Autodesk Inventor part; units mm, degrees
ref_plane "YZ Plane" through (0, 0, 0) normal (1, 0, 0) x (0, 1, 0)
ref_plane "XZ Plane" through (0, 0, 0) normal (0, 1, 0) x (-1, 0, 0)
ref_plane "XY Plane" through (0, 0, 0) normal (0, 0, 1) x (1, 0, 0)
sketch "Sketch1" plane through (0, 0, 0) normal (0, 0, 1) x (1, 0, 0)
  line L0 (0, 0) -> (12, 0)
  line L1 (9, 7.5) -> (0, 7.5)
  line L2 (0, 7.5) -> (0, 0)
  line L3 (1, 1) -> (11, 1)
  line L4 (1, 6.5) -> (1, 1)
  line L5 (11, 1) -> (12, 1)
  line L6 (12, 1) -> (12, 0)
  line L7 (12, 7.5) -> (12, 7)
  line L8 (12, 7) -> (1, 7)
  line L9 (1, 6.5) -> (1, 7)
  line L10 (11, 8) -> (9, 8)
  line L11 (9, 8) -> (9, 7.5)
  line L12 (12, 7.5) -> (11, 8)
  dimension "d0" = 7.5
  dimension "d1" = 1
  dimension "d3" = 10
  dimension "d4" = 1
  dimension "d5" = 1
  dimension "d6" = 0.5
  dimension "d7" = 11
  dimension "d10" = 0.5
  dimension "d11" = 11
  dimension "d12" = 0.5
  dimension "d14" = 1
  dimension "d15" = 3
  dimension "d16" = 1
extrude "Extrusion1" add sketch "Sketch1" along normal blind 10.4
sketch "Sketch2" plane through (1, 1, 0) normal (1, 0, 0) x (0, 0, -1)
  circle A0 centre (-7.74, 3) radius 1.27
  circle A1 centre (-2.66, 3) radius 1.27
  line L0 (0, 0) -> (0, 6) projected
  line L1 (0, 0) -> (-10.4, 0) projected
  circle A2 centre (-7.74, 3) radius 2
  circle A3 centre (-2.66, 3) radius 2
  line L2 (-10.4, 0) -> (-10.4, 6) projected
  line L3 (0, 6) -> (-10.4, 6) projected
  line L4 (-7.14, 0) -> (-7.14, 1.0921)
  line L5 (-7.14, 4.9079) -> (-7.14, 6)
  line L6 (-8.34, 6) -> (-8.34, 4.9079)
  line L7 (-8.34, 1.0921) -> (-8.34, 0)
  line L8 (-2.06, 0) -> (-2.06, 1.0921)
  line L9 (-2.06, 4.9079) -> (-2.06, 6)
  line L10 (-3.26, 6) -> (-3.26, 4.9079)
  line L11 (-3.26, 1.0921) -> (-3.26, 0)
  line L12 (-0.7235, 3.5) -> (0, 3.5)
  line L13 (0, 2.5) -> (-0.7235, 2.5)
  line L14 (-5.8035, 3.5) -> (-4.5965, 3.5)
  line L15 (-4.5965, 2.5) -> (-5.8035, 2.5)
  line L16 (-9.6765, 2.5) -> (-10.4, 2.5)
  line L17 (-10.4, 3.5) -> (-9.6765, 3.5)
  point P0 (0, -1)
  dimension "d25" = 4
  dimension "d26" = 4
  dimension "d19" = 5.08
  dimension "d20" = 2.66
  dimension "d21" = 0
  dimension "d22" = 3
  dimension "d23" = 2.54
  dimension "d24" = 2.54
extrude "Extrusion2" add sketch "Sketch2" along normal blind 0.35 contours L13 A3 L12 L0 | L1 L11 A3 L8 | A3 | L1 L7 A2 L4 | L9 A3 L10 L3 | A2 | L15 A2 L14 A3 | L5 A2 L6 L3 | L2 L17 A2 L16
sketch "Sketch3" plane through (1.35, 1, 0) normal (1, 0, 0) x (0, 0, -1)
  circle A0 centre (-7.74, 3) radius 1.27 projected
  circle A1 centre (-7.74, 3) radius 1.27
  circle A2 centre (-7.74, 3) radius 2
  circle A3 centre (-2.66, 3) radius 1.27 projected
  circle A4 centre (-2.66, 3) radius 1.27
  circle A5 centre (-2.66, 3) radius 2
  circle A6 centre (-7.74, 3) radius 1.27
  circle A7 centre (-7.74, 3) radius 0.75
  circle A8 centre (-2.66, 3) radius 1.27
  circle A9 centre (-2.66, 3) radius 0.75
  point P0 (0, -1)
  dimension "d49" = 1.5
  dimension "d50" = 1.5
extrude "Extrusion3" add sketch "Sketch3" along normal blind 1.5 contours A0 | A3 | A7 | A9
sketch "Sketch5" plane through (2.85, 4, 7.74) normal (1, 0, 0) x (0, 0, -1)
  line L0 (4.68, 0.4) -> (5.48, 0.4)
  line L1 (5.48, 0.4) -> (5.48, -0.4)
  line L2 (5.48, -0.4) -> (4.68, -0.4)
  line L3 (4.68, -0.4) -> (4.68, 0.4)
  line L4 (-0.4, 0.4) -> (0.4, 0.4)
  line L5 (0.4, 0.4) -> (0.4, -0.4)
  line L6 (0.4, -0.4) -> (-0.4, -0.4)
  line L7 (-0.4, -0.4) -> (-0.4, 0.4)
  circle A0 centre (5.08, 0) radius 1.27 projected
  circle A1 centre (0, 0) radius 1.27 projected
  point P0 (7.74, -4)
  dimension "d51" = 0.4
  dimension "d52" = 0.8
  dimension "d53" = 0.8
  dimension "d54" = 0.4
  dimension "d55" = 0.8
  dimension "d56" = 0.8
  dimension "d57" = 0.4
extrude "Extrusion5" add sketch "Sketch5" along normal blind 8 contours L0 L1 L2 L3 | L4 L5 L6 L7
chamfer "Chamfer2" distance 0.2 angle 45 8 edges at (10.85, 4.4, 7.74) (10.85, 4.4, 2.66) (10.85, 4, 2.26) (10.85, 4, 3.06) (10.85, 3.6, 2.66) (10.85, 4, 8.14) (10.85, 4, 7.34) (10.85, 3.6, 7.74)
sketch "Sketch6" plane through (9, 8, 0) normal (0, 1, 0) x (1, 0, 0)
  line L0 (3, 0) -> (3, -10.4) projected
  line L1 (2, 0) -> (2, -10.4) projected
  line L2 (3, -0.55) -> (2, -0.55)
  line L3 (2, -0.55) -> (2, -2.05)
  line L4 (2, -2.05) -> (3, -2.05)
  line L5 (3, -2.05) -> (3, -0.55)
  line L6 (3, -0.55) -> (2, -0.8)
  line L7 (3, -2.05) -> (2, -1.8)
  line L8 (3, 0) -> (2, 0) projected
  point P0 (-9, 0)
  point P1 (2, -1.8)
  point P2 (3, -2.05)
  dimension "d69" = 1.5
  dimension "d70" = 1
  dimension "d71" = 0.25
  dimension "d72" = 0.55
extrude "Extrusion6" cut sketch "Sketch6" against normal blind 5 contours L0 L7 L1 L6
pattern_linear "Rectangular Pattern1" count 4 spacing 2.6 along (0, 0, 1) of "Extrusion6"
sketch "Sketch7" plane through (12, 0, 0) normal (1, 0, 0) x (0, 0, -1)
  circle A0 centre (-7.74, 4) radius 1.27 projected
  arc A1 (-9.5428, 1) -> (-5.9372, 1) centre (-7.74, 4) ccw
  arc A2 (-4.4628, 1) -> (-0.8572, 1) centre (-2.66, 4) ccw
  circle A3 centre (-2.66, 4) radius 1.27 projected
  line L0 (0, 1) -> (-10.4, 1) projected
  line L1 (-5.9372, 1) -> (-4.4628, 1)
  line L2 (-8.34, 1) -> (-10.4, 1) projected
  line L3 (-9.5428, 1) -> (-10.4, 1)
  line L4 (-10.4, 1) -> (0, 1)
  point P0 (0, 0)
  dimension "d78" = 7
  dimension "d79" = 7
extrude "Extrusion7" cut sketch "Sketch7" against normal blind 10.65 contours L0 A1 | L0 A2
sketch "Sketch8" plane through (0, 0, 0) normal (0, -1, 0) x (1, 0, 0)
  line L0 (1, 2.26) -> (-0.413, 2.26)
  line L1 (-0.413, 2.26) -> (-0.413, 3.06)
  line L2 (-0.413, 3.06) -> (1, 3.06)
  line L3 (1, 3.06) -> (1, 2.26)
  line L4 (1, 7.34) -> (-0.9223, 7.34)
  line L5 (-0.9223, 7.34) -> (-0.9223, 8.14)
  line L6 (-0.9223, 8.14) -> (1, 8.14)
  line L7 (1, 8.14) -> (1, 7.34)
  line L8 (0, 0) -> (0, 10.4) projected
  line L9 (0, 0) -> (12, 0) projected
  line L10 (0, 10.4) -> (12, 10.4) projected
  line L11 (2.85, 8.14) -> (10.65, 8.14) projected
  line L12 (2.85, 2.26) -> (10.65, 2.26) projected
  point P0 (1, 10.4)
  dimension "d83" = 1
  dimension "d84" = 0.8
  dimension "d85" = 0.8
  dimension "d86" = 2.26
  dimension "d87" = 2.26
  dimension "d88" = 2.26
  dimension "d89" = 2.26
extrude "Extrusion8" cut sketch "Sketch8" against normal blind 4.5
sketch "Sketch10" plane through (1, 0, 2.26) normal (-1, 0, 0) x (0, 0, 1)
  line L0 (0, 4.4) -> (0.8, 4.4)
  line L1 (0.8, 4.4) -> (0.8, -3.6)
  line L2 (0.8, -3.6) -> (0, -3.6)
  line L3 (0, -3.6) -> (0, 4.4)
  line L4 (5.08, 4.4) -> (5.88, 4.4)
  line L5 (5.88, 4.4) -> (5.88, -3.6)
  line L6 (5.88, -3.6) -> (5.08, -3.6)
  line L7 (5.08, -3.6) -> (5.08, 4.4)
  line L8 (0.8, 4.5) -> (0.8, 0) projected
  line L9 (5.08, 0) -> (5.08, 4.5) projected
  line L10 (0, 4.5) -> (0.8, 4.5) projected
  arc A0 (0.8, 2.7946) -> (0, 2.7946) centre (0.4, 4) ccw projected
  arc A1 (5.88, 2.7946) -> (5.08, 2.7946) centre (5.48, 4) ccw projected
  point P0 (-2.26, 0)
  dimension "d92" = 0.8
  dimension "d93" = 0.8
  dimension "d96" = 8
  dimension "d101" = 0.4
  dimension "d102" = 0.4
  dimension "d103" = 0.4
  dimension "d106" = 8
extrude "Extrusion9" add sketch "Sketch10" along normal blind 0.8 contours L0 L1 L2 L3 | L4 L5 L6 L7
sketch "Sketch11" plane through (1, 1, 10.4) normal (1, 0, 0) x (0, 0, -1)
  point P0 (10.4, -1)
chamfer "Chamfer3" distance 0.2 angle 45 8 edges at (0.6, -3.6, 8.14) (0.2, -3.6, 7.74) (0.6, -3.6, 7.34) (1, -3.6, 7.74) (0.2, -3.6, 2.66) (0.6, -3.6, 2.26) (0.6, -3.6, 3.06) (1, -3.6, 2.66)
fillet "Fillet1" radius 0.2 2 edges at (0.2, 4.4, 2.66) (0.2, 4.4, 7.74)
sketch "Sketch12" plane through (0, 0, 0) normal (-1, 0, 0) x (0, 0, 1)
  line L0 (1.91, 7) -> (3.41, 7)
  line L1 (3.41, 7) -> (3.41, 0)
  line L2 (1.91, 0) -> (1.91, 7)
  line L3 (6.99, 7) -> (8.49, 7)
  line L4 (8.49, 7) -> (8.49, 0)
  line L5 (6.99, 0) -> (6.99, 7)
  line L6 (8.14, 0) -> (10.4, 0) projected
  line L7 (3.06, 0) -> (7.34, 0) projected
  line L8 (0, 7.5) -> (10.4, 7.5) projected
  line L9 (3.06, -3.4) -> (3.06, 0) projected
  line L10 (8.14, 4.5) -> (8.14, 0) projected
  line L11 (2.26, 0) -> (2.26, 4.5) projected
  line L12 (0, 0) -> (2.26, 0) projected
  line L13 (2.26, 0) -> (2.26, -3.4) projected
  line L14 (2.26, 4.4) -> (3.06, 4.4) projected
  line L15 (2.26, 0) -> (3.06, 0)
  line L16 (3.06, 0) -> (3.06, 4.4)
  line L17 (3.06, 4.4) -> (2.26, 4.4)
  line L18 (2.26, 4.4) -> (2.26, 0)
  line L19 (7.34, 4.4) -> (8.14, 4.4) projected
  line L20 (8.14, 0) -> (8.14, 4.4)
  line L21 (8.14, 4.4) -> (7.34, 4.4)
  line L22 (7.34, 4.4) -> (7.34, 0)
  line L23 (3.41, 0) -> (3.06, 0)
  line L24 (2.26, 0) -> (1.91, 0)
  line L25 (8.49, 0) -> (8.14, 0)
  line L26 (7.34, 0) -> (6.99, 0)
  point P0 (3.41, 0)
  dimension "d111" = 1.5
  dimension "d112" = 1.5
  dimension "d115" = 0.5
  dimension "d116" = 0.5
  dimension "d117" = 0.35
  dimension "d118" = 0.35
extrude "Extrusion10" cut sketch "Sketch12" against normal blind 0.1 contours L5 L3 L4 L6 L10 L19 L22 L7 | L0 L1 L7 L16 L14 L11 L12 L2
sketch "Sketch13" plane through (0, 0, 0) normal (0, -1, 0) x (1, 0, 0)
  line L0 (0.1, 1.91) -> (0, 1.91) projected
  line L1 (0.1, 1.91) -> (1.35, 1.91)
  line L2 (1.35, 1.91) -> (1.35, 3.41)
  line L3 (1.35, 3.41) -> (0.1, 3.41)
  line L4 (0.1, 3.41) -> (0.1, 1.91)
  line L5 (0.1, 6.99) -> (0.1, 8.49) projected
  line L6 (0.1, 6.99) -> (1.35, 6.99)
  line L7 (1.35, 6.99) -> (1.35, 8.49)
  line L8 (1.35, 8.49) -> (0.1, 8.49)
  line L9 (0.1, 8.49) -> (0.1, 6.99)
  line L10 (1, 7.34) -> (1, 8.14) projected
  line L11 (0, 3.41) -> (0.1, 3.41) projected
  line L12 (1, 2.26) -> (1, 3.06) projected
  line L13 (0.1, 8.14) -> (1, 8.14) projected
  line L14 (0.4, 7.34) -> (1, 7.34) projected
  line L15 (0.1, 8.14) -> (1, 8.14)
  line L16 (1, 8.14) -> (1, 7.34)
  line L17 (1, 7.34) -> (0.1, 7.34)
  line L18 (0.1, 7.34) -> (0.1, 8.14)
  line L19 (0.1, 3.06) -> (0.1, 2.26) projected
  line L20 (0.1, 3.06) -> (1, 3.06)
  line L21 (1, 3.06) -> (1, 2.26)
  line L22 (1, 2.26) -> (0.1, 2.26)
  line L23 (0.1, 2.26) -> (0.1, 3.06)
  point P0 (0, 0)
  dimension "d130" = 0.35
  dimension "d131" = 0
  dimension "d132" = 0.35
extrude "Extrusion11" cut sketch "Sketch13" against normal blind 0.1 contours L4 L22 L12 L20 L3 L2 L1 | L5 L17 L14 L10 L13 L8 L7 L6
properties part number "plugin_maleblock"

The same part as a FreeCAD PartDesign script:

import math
import FreeCAD as App
import Part
import Sketcher

V = App.Vector


def edges_at(feature, points):
    """Names of the edges that pass closest to the given points."""
    edges = feature.Shape.Edges
    near = lambda p: min(range(len(edges)), key=lambda i: edges[i].distToShape(Part.Vertex(*p))[0])
    return sorted({f"Edge{near(p) + 1}" for p in points})


def add_polygon(sketch, points):
    """Adds a closed chain of lines whose ends are joined by coincident constraints."""
    first, n = sketch.GeometryCount, len(points)
    for a, b in zip(points, points[1:] + points[:1]):
        sketch.addGeometry(Part.LineSegment(App.Vector(*a, 0), App.Vector(*b, 0)), False)
    for i in range(n):
        sketch.addConstraint(Sketcher.Constraint("Coincident", first + i, 2, first + (i + 1) % n, 1))

doc = App.newDocument("Part")
body = doc.addObject("PartDesign::Body", "Body")
body.AllowCompound = True

# Sketch on XY plane
sketch1 = body.newObject("Sketcher::SketchObject", "Sketch")
sketch1.AttachmentSupport = (doc.getObject("XY_Plane"), [""])
sketch1.MapMode = "FlatFace"
add_polygon(sketch1, [(0, 7.5), (0, 0), (12, 0), (12, 1), (1, 1), (1, 7), (12, 7), (12, 7.5), (11, 8), (9, 8), (9, 7.5)])  # lines 0-10
sketch1.addConstraint(Sketcher.Constraint("Vertical", 0))
sketch1.addConstraint(Sketcher.Constraint("Horizontal", 1))
sketch1.addConstraint(Sketcher.Constraint("Vertical", 2))
sketch1.addConstraint(Sketcher.Constraint("Horizontal", 3))
sketch1.addConstraint(Sketcher.Constraint("Vertical", 4))
sketch1.addConstraint(Sketcher.Constraint("Horizontal", 5))
sketch1.addConstraint(Sketcher.Constraint("Vertical", 6))
sketch1.addConstraint(Sketcher.Constraint("Horizontal", 8))
sketch1.addConstraint(Sketcher.Constraint("Vertical", 9))
sketch1.addConstraint(Sketcher.Constraint("Horizontal", 10))
sketch1.addConstraint(Sketcher.Constraint("Coincident", 0, 2, -1, 1))
sketch1.addConstraint(Sketcher.Constraint("Horizontal", 6, 2, 9, 2))
sketch1.addConstraint(Sketcher.Constraint("Vertical", 2, 2, 5, 2))
sketch1.addConstraint(Sketcher.Constraint("Equal", 6, 9))
sketch1.addConstraint(Sketcher.Constraint("DistanceX", 3, 2, 3, 1, 11.0))
sketch1.addConstraint(Sketcher.Constraint("DistanceY", 2, 1, 2, 2, 1.0))
sketch1.addConstraint(Sketcher.Constraint("DistanceY", 0, 2, 0, 1, 7.5))
sketch1.addConstraint(Sketcher.Constraint("DistanceY", 6, 1, 6, 2, 0.5))
sketch1.addConstraint(Sketcher.Constraint("DistanceX", -1, 1, 3, 2, 1.0))
sketch1.addConstraint(Sketcher.Constraint("DistanceX", -1, 1, 7, 2, 11.0))
sketch1.addConstraint(Sketcher.Constraint("DistanceX", 8, 2, 6, 2, 3.0))
pad1 = body.newObject("PartDesign::Pad", "Pad")
pad1.Profile = sketch1
pad1.Length = 10.4

# Sketch on YZ plane
sketch2 = body.newObject("Sketcher::SketchObject", "Sketch001")
sketch2.AttachmentSupport = (doc.getObject("YZ_Plane"), [""])
sketch2.MapMode = "FlatFace"
sketch2.AttachmentOffset = App.Placement(V(0, 0, 1), App.Rotation())
sketch2.addGeometry(Part.LineSegment(V(3.5, 0.7, 0), V(3.5, 0, 0)), False)
sketch2.addGeometry(Part.LineSegment(V(3.5, 0, 0), V(4.5, 0, 0)), False)
sketch2.addGeometry(Part.LineSegment(V(4.5, 0, 0), V(4.5, 0.7, 0)), False)
sketch2.addGeometry(Part.ArcOfCircle(Part.Circle(V(4, 2.7, 0), V(0, 0, 1), 2), math.radians(-76), math.radians(-17)), False)
sketch2.addGeometry(Part.LineSegment(V(5.9, 2.1, 0), V(7, 2.1, 0)), False)
sketch2.addGeometry(Part.LineSegment(V(7, 2.1, 0), V(7, 3.3, 0)), False)
sketch2.addGeometry(Part.LineSegment(V(7, 3.3, 0), V(5.9, 3.3, 0)), False)
sketch2.addGeometry(Part.ArcOfCircle(Part.Circle(V(4, 2.7, 0), V(0, 0, 1), 2), math.radians(17), math.radians(76)), False)
sketch2.addGeometry(Part.LineSegment(V(4.5, 4.6, 0), V(4.5, 5.8, 0)), False)
sketch2.addGeometry(Part.ArcOfCircle(Part.Circle(V(4, 7.7, 0), V(0, 0, 1), 2), math.radians(-76), math.radians(-17)), False)
sketch2.addGeometry(Part.LineSegment(V(5.9, 7.1, 0), V(7, 7.1, 0)), False)
sketch2.addGeometry(Part.LineSegment(V(7, 7.1, 0), V(7, 8.3, 0)), False)
sketch2.addGeometry(Part.LineSegment(V(7, 8.3, 0), V(5.9, 8.3, 0)), False)
sketch2.addGeometry(Part.ArcOfCircle(Part.Circle(V(4, 7.7, 0), V(0, 0, 1), 2), math.radians(17), math.radians(76)), False)
sketch2.addGeometry(Part.LineSegment(V(4.5, 9.7, 0), V(4.5, 10.4, 0)), False)
sketch2.addGeometry(Part.LineSegment(V(4.5, 10.4, 0), V(3.5, 10.4, 0)), False)
sketch2.addGeometry(Part.LineSegment(V(3.5, 10.4, 0), V(3.5, 9.7, 0)), False)
sketch2.addGeometry(Part.ArcOfCircle(Part.Circle(V(4, 7.7, 0), V(0, 0, 1), 2), math.radians(104), math.radians(163)), False)
sketch2.addGeometry(Part.LineSegment(V(2.1, 8.3, 0), V(1, 8.3, 0)), False)
sketch2.addGeometry(Part.LineSegment(V(1, 8.3, 0), V(1, 7.1, 0)), False)
sketch2.addGeometry(Part.LineSegment(V(1, 7.1, 0), V(2.1, 7.1, 0)), False)
sketch2.addGeometry(Part.ArcOfCircle(Part.Circle(V(4, 7.7, 0), V(0, 0, 1), 2), math.radians(-163), math.radians(-104)), False)
sketch2.addGeometry(Part.LineSegment(V(3.5, 5.8, 0), V(3.5, 4.6, 0)), False)
sketch2.addGeometry(Part.ArcOfCircle(Part.Circle(V(4, 2.7, 0), V(0, 0, 1), 2), math.radians(104), math.radians(163)), False)
sketch2.addGeometry(Part.LineSegment(V(2.1, 3.3, 0), V(1, 3.3, 0)), False)
sketch2.addGeometry(Part.LineSegment(V(1, 3.3, 0), V(1, 2.1, 0)), False)
sketch2.addGeometry(Part.LineSegment(V(1, 2.1, 0), V(2.1, 2.1, 0)), False)
sketch2.addGeometry(Part.ArcOfCircle(Part.Circle(V(4, 2.7, 0), V(0, 0, 1), 2), math.radians(-163), math.radians(-104)), False)
sketch2.addGeometry(Part.Circle(V(4, 2.7, 0), V(0, 0, 1), 1.3), False)
sketch2.addGeometry(Part.Circle(V(4, 7.7, 0), V(0, 0, 1), 1.3), False)
sketch2.addConstraint(Sketcher.Constraint("Coincident", 0, 2, 1, 1))
sketch2.addConstraint(Sketcher.Constraint("Coincident", 1, 2, 2, 1))
sketch2.addConstraint(Sketcher.Constraint("Coincident", 2, 2, 3, 1))
sketch2.addConstraint(Sketcher.Constraint("Coincident", 3, 2, 4, 1))
sketch2.addConstraint(Sketcher.Constraint("Coincident", 4, 2, 5, 1))
sketch2.addConstraint(Sketcher.Constraint("Coincident", 5, 2, 6, 1))
sketch2.addConstraint(Sketcher.Constraint("Coincident", 6, 2, 7, 1))
sketch2.addConstraint(Sketcher.Constraint("Coincident", 7, 2, 8, 1))
sketch2.addConstraint(Sketcher.Constraint("Coincident", 8, 2, 9, 1))
sketch2.addConstraint(Sketcher.Constraint("Coincident", 9, 2, 10, 1))
sketch2.addConstraint(Sketcher.Constraint("Coincident", 10, 2, 11, 1))
sketch2.addConstraint(Sketcher.Constraint("Coincident", 11, 2, 12, 1))
sketch2.addConstraint(Sketcher.Constraint("Coincident", 12, 2, 13, 1))
sketch2.addConstraint(Sketcher.Constraint("Coincident", 13, 2, 14, 1))
sketch2.addConstraint(Sketcher.Constraint("Coincident", 14, 2, 15, 1))
sketch2.addConstraint(Sketcher.Constraint("Coincident", 15, 2, 16, 1))
sketch2.addConstraint(Sketcher.Constraint("Coincident", 16, 2, 17, 1))
sketch2.addConstraint(Sketcher.Constraint("Coincident", 17, 2, 18, 1))
sketch2.addConstraint(Sketcher.Constraint("Coincident", 18, 2, 19, 1))
sketch2.addConstraint(Sketcher.Constraint("Coincident", 19, 2, 20, 1))
sketch2.addConstraint(Sketcher.Constraint("Coincident", 20, 2, 21, 1))
sketch2.addConstraint(Sketcher.Constraint("Coincident", 21, 2, 22, 1))
sketch2.addConstraint(Sketcher.Constraint("Coincident", 22, 2, 23, 1))
sketch2.addConstraint(Sketcher.Constraint("Coincident", 23, 2, 24, 1))
sketch2.addConstraint(Sketcher.Constraint("Coincident", 24, 2, 25, 1))
sketch2.addConstraint(Sketcher.Constraint("Coincident", 25, 2, 26, 1))
sketch2.addConstraint(Sketcher.Constraint("Coincident", 26, 2, 27, 1))
sketch2.addConstraint(Sketcher.Constraint("Coincident", 27, 2, 0, 1))
sketch2.addConstraint(Sketcher.Constraint("Vertical", 0))
sketch2.addConstraint(Sketcher.Constraint("Horizontal", 1))
sketch2.addConstraint(Sketcher.Constraint("Vertical", 2))
sketch2.addConstraint(Sketcher.Constraint("Horizontal", 4))
sketch2.addConstraint(Sketcher.Constraint("Vertical", 5))
sketch2.addConstraint(Sketcher.Constraint("Horizontal", 6))
sketch2.addConstraint(Sketcher.Constraint("Vertical", 8))
sketch2.addConstraint(Sketcher.Constraint("Horizontal", 10))
sketch2.addConstraint(Sketcher.Constraint("Vertical", 11))
sketch2.addConstraint(Sketcher.Constraint("Horizontal", 12))
sketch2.addConstraint(Sketcher.Constraint("Vertical", 14))
sketch2.addConstraint(Sketcher.Constraint("Horizontal", 15))
sketch2.addConstraint(Sketcher.Constraint("Vertical", 16))
sketch2.addConstraint(Sketcher.Constraint("Horizontal", 18))
sketch2.addConstraint(Sketcher.Constraint("Vertical", 19))
sketch2.addConstraint(Sketcher.Constraint("Horizontal", 20))
sketch2.addConstraint(Sketcher.Constraint("Vertical", 22))
sketch2.addConstraint(Sketcher.Constraint("Horizontal", 24))
sketch2.addConstraint(Sketcher.Constraint("Vertical", 25))
sketch2.addConstraint(Sketcher.Constraint("Horizontal", 26))
sketch2.addConstraint(Sketcher.Constraint("Coincident", 7, 3, 3, 3))
sketch2.addConstraint(Sketcher.Constraint("Coincident", 13, 3, 9, 3))
sketch2.addConstraint(Sketcher.Constraint("Coincident", 17, 3, 9, 3))
sketch2.addConstraint(Sketcher.Constraint("Coincident", 21, 3, 9, 3))
sketch2.addConstraint(Sketcher.Constraint("Coincident", 23, 3, 3, 3))
sketch2.addConstraint(Sketcher.Constraint("Coincident", 27, 3, 3, 3))
sketch2.addConstraint(Sketcher.Constraint("Coincident", 28, 3, 3, 3))
sketch2.addConstraint(Sketcher.Constraint("Coincident", 29, 3, 9, 3))
sketch2.addConstraint(Sketcher.Constraint("Equal", 3, 7))
sketch2.addConstraint(Sketcher.Constraint("Equal", 7, 9))
sketch2.addConstraint(Sketcher.Constraint("Equal", 9, 13))
sketch2.addConstraint(Sketcher.Constraint("Equal", 13, 17))
sketch2.addConstraint(Sketcher.Constraint("Equal", 17, 21))
sketch2.addConstraint(Sketcher.Constraint("Equal", 21, 23))
sketch2.addConstraint(Sketcher.Constraint("Equal", 23, 27))
sketch2.addConstraint(Sketcher.Constraint("Equal", 28, 29))
sketch2.addConstraint(Sketcher.Constraint("PointOnObject", 0, 2, -1))
sketch2.addConstraint(Sketcher.Constraint("Horizontal", 13, 2, 16, 2))
sketch2.addConstraint(Sketcher.Constraint("Horizontal", 12, 2, 17, 2))
sketch2.addConstraint(Sketcher.Constraint("Horizontal", 10, 2, 19, 2))
sketch2.addConstraint(Sketcher.Constraint("Horizontal", 8, 2, 21, 2))
sketch2.addConstraint(Sketcher.Constraint("Horizontal", 7, 2, 22, 2))
sketch2.addConstraint(Sketcher.Constraint("Horizontal", 6, 2, 23, 2))
sketch2.addConstraint(Sketcher.Constraint("Horizontal", 4, 2, 25, 2))
sketch2.addConstraint(Sketcher.Constraint("Horizontal", 2, 2, 27, 2))
sketch2.addConstraint(Sketcher.Constraint("Vertical", 3, 2, 6, 2))
sketch2.addConstraint(Sketcher.Constraint("Vertical", 2, 2, 7, 2))
sketch2.addConstraint(Sketcher.Constraint("Vertical", 6, 2, 9, 2))
sketch2.addConstraint(Sketcher.Constraint("Vertical", 5, 2, 10, 2))
sketch2.addConstraint(Sketcher.Constraint("Vertical", 9, 2, 12, 2))
sketch2.addConstraint(Sketcher.Constraint("Vertical", 8, 2, 13, 2))
sketch2.addConstraint(Sketcher.Constraint("Vertical", 19, 2, 24, 2))
sketch2.addConstraint(Sketcher.Constraint("Equal", 12, 18))
sketch2.addConstraint(Sketcher.Constraint("Equal", 2, 14))
sketch2.addConstraint(Sketcher.Constraint("Radius", 3, 2.0))
sketch2.addConstraint(Sketcher.Constraint("Diameter", 28, 2.54))
sketch2.addConstraint(Sketcher.Constraint("DistanceX", -1, 1, 3, 3, 4.0))
sketch2.addConstraint(Sketcher.Constraint("DistanceX", 3, 3, 4, 2, 3.0))
sketch2.addConstraint(Sketcher.Constraint("DistanceX", 1, 1, 1, 2, 1.0))
sketch2.addConstraint(Sketcher.Constraint("DistanceY", -1, 1, 3, 3, 2.66))
sketch2.addConstraint(Sketcher.Constraint("DistanceY", 3, 3, 9, 3, 5.08))
sketch2.addConstraint(Sketcher.Constraint("DistanceY", 5, 1, 5, 2, 1.2))
pad2 = body.newObject("PartDesign::Pad", "Pad001")
pad2.Profile = sketch2
pad2.Length = 0.35

# Sketch on YZ plane
sketch3 = body.newObject("Sketcher::SketchObject", "Sketch002")
sketch3.AttachmentSupport = (doc.getObject("YZ_Plane"), [""])
sketch3.MapMode = "FlatFace"
sketch3.AttachmentOffset = App.Placement(V(0, 0, 1.35), App.Rotation())
sketch3.addGeometry(Part.Circle(V(4, 7.7, 0), V(0, 0, 1), 1.3), False)
sketch3.addGeometry(Part.Circle(V(4, 2.7, 0), V(0, 0, 1), 1.3), False)
sketch3.addConstraint(Sketcher.Constraint("Equal", 0, 1))
sketch3.addConstraint(Sketcher.Constraint("Vertical", 0, 3, 1, 3))
sketch3.addConstraint(Sketcher.Constraint("Diameter", 0, 2.54))
sketch3.addConstraint(Sketcher.Constraint("DistanceX", -1, 1, 0, 3, 4.0))
sketch3.addConstraint(Sketcher.Constraint("DistanceY", -1, 1, 0, 3, 7.74))
sketch3.addConstraint(Sketcher.Constraint("DistanceY", -1, 1, 1, 3, 2.66))
pad3 = body.newObject("PartDesign::Pad", "Pad002")
pad3.Profile = sketch3
pad3.Length = 1.5

# Sketch on YZ plane
sketch4 = body.newObject("Sketcher::SketchObject", "Sketch003")
sketch4.AttachmentSupport = (doc.getObject("YZ_Plane"), [""])
sketch4.MapMode = "FlatFace"
sketch4.AttachmentOffset = App.Placement(V(0, 0, 2.85), App.Rotation())
add_polygon(sketch4, [(4.4, 2.3), (4.4, 3.1), (3.6, 3.1), (3.6, 2.3)])  # lines 0-3
add_polygon(sketch4, [(4.4, 7.3), (4.4, 8.1), (3.6, 8.1), (3.6, 7.3)])  # lines 4-7
sketch4.addConstraint(Sketcher.Constraint("Vertical", 0))
sketch4.addConstraint(Sketcher.Constraint("Horizontal", 1))
sketch4.addConstraint(Sketcher.Constraint("Vertical", 2))
sketch4.addConstraint(Sketcher.Constraint("Horizontal", 3))
sketch4.addConstraint(Sketcher.Constraint("Vertical", 4))
sketch4.addConstraint(Sketcher.Constraint("Horizontal", 5))
sketch4.addConstraint(Sketcher.Constraint("Vertical", 6))
sketch4.addConstraint(Sketcher.Constraint("Horizontal", 7))
sketch4.addConstraint(Sketcher.Constraint("Vertical", 3, 2, 4, 2))
sketch4.addConstraint(Sketcher.Constraint("Vertical", 2, 2, 5, 2))
sketch4.addConstraint(Sketcher.Constraint("Equal", 7, 0))
sketch4.addConstraint(Sketcher.Constraint("Equal", 2, 4))
sketch4.addConstraint(Sketcher.Constraint("DistanceX", 1, 2, 1, 1, 0.8))
sketch4.addConstraint(Sketcher.Constraint("DistanceX", -1, 1, 0, 2, 4.4))
sketch4.addConstraint(Sketcher.Constraint("DistanceY", -1, 1, 0, 2, 3.06))
sketch4.addConstraint(Sketcher.Constraint("DistanceY", -1, 1, 4, 2, 8.14))
pad4 = body.newObject("PartDesign::Pad", "Pad003")
pad4.Profile = sketch4
pad4.Length = 8
doc.recompute()

chamfer = body.newObject("PartDesign::Chamfer", "Chamfer")
chamfer.Base = (pad4, edges_at(pad4, [
    (10.85, 4.4, 7.74),
    (10.85, 4.4, 2.66),
    (10.85, 4, 2.26),
    (10.85, 4, 3.06),
    (10.85, 3.6, 2.66),
    (10.85, 4, 8.14),
    (10.85, 4, 7.34),
    (10.85, 3.6, 7.74),
]))
chamfer.Size = 0.2

# Sketch on XZ plane
sketch5 = body.newObject("Sketcher::SketchObject", "Sketch004")
sketch5.AttachmentSupport = (doc.getObject("XZ_Plane"), [""])
sketch5.MapMode = "FlatFace"
sketch5.AttachmentOffset = App.Placement(V(0, 0, -8), App.Rotation())
add_polygon(sketch5, [(12, 2), (12, 0.6), (11, 0.8), (11, 1.8)])  # lines 0-3
sketch5.addConstraint(Sketcher.Constraint("Vertical", 0))
sketch5.addConstraint(Sketcher.Constraint("Vertical", 2))
sketch5.addConstraint(Sketcher.Constraint("Equal", 1, 3))
sketch5.addConstraint(Sketcher.Constraint("DistanceY", 2, 1, 2, 2, 1.0))
sketch5.addConstraint(Sketcher.Constraint("DistanceY", 0, 2, 0, 1, 1.5))
sketch5.addConstraint(Sketcher.Constraint("DistanceX", 1, 2, 0, 2, 1.0))
sketch5.addConstraint(Sketcher.Constraint("DistanceY", -1, 1, 0, 2, 0.55))
sketch5.addConstraint(Sketcher.Constraint("DistanceX", -1, 1, 0, 2, 12.0))
pocket1 = body.newObject("PartDesign::Pocket", "Pocket")
pocket1.Profile = sketch5
pocket1.Length = 5
pocket1.Reversed = True
doc.recompute()

linearpattern = body.newObject("PartDesign::LinearPattern", "LinearPattern")
linearpattern.Originals = [pocket1]
linearpattern.Direction = (doc.getObject("Z_Axis"), [""])
linearpattern.Mode = "offset"
linearpattern.Offset = 2.6
linearpattern.Occurrences = 4
body.Tip = linearpattern

# Sketch on YZ plane
sketch6 = body.newObject("Sketcher::SketchObject", "Sketch005")
sketch6.AttachmentSupport = (doc.getObject("YZ_Plane"), [""])
sketch6.MapMode = "FlatFace"
sketch6.AttachmentOffset = App.Placement(V(0, 0, 12), App.Rotation())
sketch6.addGeometry(Part.LineSegment(V(1, 5.9, 0), V(1, 9.5, 0)), False)
sketch6.addGeometry(Part.ArcOfCircle(Part.Circle(V(4, 7.7, 0), V(0, 0, 1), 3.5), math.radians(149), math.radians(211)), False)
sketch6.addGeometry(Part.LineSegment(V(1, 0.9, 0), V(1, 4.5, 0)), False)
sketch6.addGeometry(Part.ArcOfCircle(Part.Circle(V(4, 2.7, 0), V(0, 0, 1), 3.5), math.radians(149), math.radians(211)), False)
sketch6.addConstraint(Sketcher.Constraint("Coincident", 0, 1, 1, 2))
sketch6.addConstraint(Sketcher.Constraint("Coincident", 1, 1, 0, 2))
sketch6.addConstraint(Sketcher.Constraint("Coincident", 2, 1, 3, 2))
sketch6.addConstraint(Sketcher.Constraint("Coincident", 3, 1, 2, 2))
sketch6.addConstraint(Sketcher.Constraint("Vertical", 0))
sketch6.addConstraint(Sketcher.Constraint("Vertical", 2))
sketch6.addConstraint(Sketcher.Constraint("Equal", 1, 3))
sketch6.addConstraint(Sketcher.Constraint("Vertical", 1, 3, 3, 3))
sketch6.addConstraint(Sketcher.Constraint("Vertical", 1, 1, 2, 1))
sketch6.addConstraint(Sketcher.Constraint("Radius", 1, 3.5))
sketch6.addConstraint(Sketcher.Constraint("DistanceX", -1, 1, 1, 3, 4.0))
sketch6.addConstraint(Sketcher.Constraint("DistanceX", -1, 1, 0, 1, 1.0))
sketch6.addConstraint(Sketcher.Constraint("DistanceY", -1, 1, 1, 3, 7.74))
sketch6.addConstraint(Sketcher.Constraint("DistanceY", -1, 1, 3, 3, 2.66))
pocket2 = body.newObject("PartDesign::Pocket", "Pocket001")
pocket2.Profile = sketch6
pocket2.Length = 10.65

# Sketch on XZ plane
sketch7 = body.newObject("Sketcher::SketchObject", "Sketch006")
sketch7.AttachmentSupport = (doc.getObject("XZ_Plane"), [""])
sketch7.MapMode = "FlatFace"
add_polygon(sketch7, [(-0.9, 7.3), (1, 7.3), (1, 8.1), (-0.9, 8.1)])  # lines 0-3
add_polygon(sketch7, [(1, 2.3), (1, 3.1), (-0.4, 3.1), (-0.4, 2.3)])  # lines 4-7
sketch7.addConstraint(Sketcher.Constraint("Horizontal", 0))
sketch7.addConstraint(Sketcher.Constraint("Vertical", 1))
sketch7.addConstraint(Sketcher.Constraint("Horizontal", 2))
sketch7.addConstraint(Sketcher.Constraint("Vertical", 3))
sketch7.addConstraint(Sketcher.Constraint("Vertical", 4))
sketch7.addConstraint(Sketcher.Constraint("Horizontal", 5))
sketch7.addConstraint(Sketcher.Constraint("Vertical", 6))
sketch7.addConstraint(Sketcher.Constraint("Horizontal", 7))
sketch7.addConstraint(Sketcher.Constraint("Vertical", 1, 2, 4, 2))
sketch7.addConstraint(Sketcher.Constraint("Equal", 3, 4))
sketch7.addConstraint(Sketcher.Constraint("DistanceY", 1, 1, 1, 2, 0.8))
sketch7.addConstraint(Sketcher.Constraint("DistanceX", -1, 1, 0, 2, 1.0))
sketch7.addConstraint(Sketcher.Constraint("DistanceY", -1, 1, 6, 2, 2.26))
sketch7.addConstraint(Sketcher.Constraint("DistanceX", 5, 2, 5, 1, 1.413))
sketch7.addConstraint(Sketcher.Constraint("DistanceY", -1, 1, 0, 2, 7.34))
sketch7.addConstraint(Sketcher.Constraint("DistanceX", 0, 1, 0, 2, 1.9223))
pocket3 = body.newObject("PartDesign::Pocket", "Pocket002")
pocket3.Profile = sketch7
pocket3.Length = 4.5

# Sketch on YZ plane
sketch8 = body.newObject("Sketcher::SketchObject", "Sketch007")
sketch8.AttachmentSupport = (doc.getObject("YZ_Plane"), [""])
sketch8.MapMode = "FlatFace"
sketch8.AttachmentOffset = App.Placement(V(0, 0, 1), App.Rotation())
add_polygon(sketch8, [(4.4, 3.1), (4.4, 2.3), (-3.6, 2.3), (-3.6, 3.1)])  # lines 0-3
add_polygon(sketch8, [(4.4, 8.1), (4.4, 7.3), (-3.6, 7.3), (-3.6, 8.1)])  # lines 4-7
sketch8.addConstraint(Sketcher.Constraint("Vertical", 0))
sketch8.addConstraint(Sketcher.Constraint("Horizontal", 1))
sketch8.addConstraint(Sketcher.Constraint("Vertical", 2))
sketch8.addConstraint(Sketcher.Constraint("Horizontal", 3))
sketch8.addConstraint(Sketcher.Constraint("Vertical", 4))
sketch8.addConstraint(Sketcher.Constraint("Horizontal", 5))
sketch8.addConstraint(Sketcher.Constraint("Vertical", 6))
sketch8.addConstraint(Sketcher.Constraint("Horizontal", 7))
sketch8.addConstraint(Sketcher.Constraint("Vertical", 3, 2, 4, 2))
sketch8.addConstraint(Sketcher.Constraint("Vertical", 2, 2, 5, 2))
sketch8.addConstraint(Sketcher.Constraint("Equal", 2, 4))
sketch8.addConstraint(Sketcher.Constraint("DistanceX", 1, 2, 1, 1, 8.0))
sketch8.addConstraint(Sketcher.Constraint("DistanceY", 0, 2, 0, 1, 0.8))
sketch8.addConstraint(Sketcher.Constraint("DistanceX", -1, 1, 0, 2, 4.4))
sketch8.addConstraint(Sketcher.Constraint("DistanceY", -1, 1, 0, 2, 2.26))
sketch8.addConstraint(Sketcher.Constraint("DistanceY", -1, 1, 4, 2, 7.34))
pad5 = body.newObject("PartDesign::Pad", "Pad004")
pad5.Profile = sketch8
pad5.Length = 0.8
pad5.Reversed = True
doc.recompute()

chamfer2 = body.newObject("PartDesign::Chamfer", "Chamfer001")
chamfer2.Base = (pad5, edges_at(pad5, [
    (0.6, -3.6, 8.14),
    (0.2, -3.6, 7.74),
    (0.6, -3.6, 7.34),
    (1, -3.6, 7.74),
    (0.2, -3.6, 2.66),
    (0.6, -3.6, 2.26),
    (0.6, -3.6, 3.06),
    (1, -3.6, 2.66),
]))
chamfer2.Size = 0.2
doc.recompute()

fillet = body.newObject("PartDesign::Fillet", "Fillet")
fillet.Base = (chamfer2, edges_at(chamfer2, [(0.2, 4.4, 2.66), (0.2, 4.4, 7.74)]))
fillet.Radius = 0.2

# Sketch on YZ plane
sketch9 = body.newObject("Sketcher::SketchObject", "Sketch008")
sketch9.AttachmentSupport = (doc.getObject("YZ_Plane"), [""])
sketch9.MapMode = "FlatFace"
add_polygon(sketch9, [(7, 6.99), (0, 6.99), (0, 7.34), (4.4, 7.34), (4.4, 8.14), (0, 8.14), (0, 8.49), (7, 8.49)])  # lines 0-7
add_polygon(sketch9, [(7, 3.41), (7, 1.91), (0, 1.91), (0, 2.26), (4.4, 2.26), (4.4, 3.06), (0, 3.06), (0, 3.41)])  # lines 8-15
sketch9.addConstraint(Sketcher.Constraint("Horizontal", 0))
sketch9.addConstraint(Sketcher.Constraint("Vertical", 1))
sketch9.addConstraint(Sketcher.Constraint("Horizontal", 2))
sketch9.addConstraint(Sketcher.Constraint("Vertical", 3))
sketch9.addConstraint(Sketcher.Constraint("Horizontal", 4))
sketch9.addConstraint(Sketcher.Constraint("Vertical", 5))
sketch9.addConstraint(Sketcher.Constraint("Horizontal", 6))
sketch9.addConstraint(Sketcher.Constraint("Vertical", 7))
sketch9.addConstraint(Sketcher.Constraint("Vertical", 8))
sketch9.addConstraint(Sketcher.Constraint("Horizontal", 9))
sketch9.addConstraint(Sketcher.Constraint("Vertical", 10))
sketch9.addConstraint(Sketcher.Constraint("Horizontal", 11))
sketch9.addConstraint(Sketcher.Constraint("Vertical", 12))
sketch9.addConstraint(Sketcher.Constraint("Horizontal", 13))
sketch9.addConstraint(Sketcher.Constraint("Vertical", 14))
sketch9.addConstraint(Sketcher.Constraint("Horizontal", 15))
sketch9.addConstraint(Sketcher.Constraint("PointOnObject", 0, 2, -2))
sketch9.addConstraint(Sketcher.Constraint("PointOnObject", 4, 2, -2))
sketch9.addConstraint(Sketcher.Constraint("PointOnObject", 9, 2, -2))
sketch9.addConstraint(Sketcher.Constraint("PointOnObject", 13, 2, -2))
sketch9.addConstraint(Sketcher.Constraint("Vertical", 7, 2, 8, 2))
sketch9.addConstraint(Sketcher.Constraint("Vertical", 3, 2, 11, 2))
sketch9.addConstraint(Sketcher.Constraint("Equal", 1, 5))
sketch9.addConstraint(Sketcher.Constraint("Equal", 7, 8))
sketch9.addConstraint(Sketcher.Constraint("Equal", 5, 10))
sketch9.addConstraint(Sketcher.Constraint("Equal", 3, 12))
sketch9.addConstraint(Sketcher.Constraint("DistanceY", 7, 2, 7, 1, 1.5))
sketch9.addConstraint(Sketcher.Constraint("DistanceY", 1, 1, 1, 2, 0.35))
sketch9.addConstraint(Sketcher.Constraint("DistanceX", 0, 2, 0, 1, 7.0))
sketch9.addConstraint(Sketcher.Constraint("DistanceX", 2, 1, 2, 2, 4.4))
sketch9.addConstraint(Sketcher.Constraint("DistanceY", -1, 1, 0, 2, 6.99))
sketch9.addConstraint(Sketcher.Constraint("DistanceY", -1, 1, 8, 2, 1.91))
pocket4 = body.newObject("PartDesign::Pocket", "Pocket003")
pocket4.Profile = sketch9
pocket4.Length = 0.1
pocket4.Reversed = True

# Sketch on XZ plane
sketch10 = body.newObject("Sketcher::SketchObject", "Sketch009")
sketch10.AttachmentSupport = (doc.getObject("XZ_Plane"), [""])
sketch10.MapMode = "FlatFace"
add_polygon(sketch10, [(0.1, 2.26), (0.1, 1.91), (1.35, 1.91), (1.35, 3.41), (0.1, 3.41), (0.1, 3.06), (1, 3.06), (1, 2.26)])  # lines 0-7
add_polygon(sketch10, [(0.1, 7.34), (0.1, 6.99), (1.35, 6.99), (1.35, 8.49), (0.1, 8.49), (0.1, 8.14), (1, 8.14), (1, 7.34)])  # lines 8-15
sketch10.addConstraint(Sketcher.Constraint("Vertical", 0))
sketch10.addConstraint(Sketcher.Constraint("Horizontal", 1))
sketch10.addConstraint(Sketcher.Constraint("Vertical", 2))
sketch10.addConstraint(Sketcher.Constraint("Horizontal", 3))
sketch10.addConstraint(Sketcher.Constraint("Vertical", 4))
sketch10.addConstraint(Sketcher.Constraint("Horizontal", 5))
sketch10.addConstraint(Sketcher.Constraint("Vertical", 6))
sketch10.addConstraint(Sketcher.Constraint("Horizontal", 7))
sketch10.addConstraint(Sketcher.Constraint("Vertical", 8))
sketch10.addConstraint(Sketcher.Constraint("Horizontal", 9))
sketch10.addConstraint(Sketcher.Constraint("Vertical", 10))
sketch10.addConstraint(Sketcher.Constraint("Horizontal", 11))
sketch10.addConstraint(Sketcher.Constraint("Vertical", 12))
sketch10.addConstraint(Sketcher.Constraint("Horizontal", 13))
sketch10.addConstraint(Sketcher.Constraint("Vertical", 14))
sketch10.addConstraint(Sketcher.Constraint("Horizontal", 15))
sketch10.addConstraint(Sketcher.Constraint("Vertical", 0, 2, 3, 2))
sketch10.addConstraint(Sketcher.Constraint("Vertical", 7, 2, 8, 2))
sketch10.addConstraint(Sketcher.Constraint("Vertical", 2, 2, 9, 2))
sketch10.addConstraint(Sketcher.Constraint("Vertical", 8, 2, 11, 2))
sketch10.addConstraint(Sketcher.Constraint("Vertical", 6, 2, 13, 2))
sketch10.addConstraint(Sketcher.Constraint("Equal", 0, 4))
sketch10.addConstraint(Sketcher.Constraint("Equal", 4, 8))
sketch10.addConstraint(Sketcher.Constraint("Equal", 2, 10))
sketch10.addConstraint(Sketcher.Constraint("Equal", 8, 12))
sketch10.addConstraint(Sketcher.Constraint("DistanceY", 0, 2, 0, 1, 0.35))
sketch10.addConstraint(Sketcher.Constraint("DistanceX", 5, 2, 2, 2, 0.35))
sketch10.addConstraint(Sketcher.Constraint("DistanceX", 5, 1, 5, 2, 0.9))
sketch10.addConstraint(Sketcher.Constraint("DistanceY", 2, 1, 2, 2, 1.5))
sketch10.addConstraint(Sketcher.Constraint("DistanceX", -1, 1, 5, 2, 1.0))
sketch10.addConstraint(Sketcher.Constraint("DistanceY", -1, 1, 0, 2, 1.91))
sketch10.addConstraint(Sketcher.Constraint("DistanceY", -1, 1, 8, 2, 6.99))
pocket5 = body.newObject("PartDesign::Pocket", "Pocket004")
pocket5.Profile = sketch10
pocket5.Length = 0.1

doc.recompute()
